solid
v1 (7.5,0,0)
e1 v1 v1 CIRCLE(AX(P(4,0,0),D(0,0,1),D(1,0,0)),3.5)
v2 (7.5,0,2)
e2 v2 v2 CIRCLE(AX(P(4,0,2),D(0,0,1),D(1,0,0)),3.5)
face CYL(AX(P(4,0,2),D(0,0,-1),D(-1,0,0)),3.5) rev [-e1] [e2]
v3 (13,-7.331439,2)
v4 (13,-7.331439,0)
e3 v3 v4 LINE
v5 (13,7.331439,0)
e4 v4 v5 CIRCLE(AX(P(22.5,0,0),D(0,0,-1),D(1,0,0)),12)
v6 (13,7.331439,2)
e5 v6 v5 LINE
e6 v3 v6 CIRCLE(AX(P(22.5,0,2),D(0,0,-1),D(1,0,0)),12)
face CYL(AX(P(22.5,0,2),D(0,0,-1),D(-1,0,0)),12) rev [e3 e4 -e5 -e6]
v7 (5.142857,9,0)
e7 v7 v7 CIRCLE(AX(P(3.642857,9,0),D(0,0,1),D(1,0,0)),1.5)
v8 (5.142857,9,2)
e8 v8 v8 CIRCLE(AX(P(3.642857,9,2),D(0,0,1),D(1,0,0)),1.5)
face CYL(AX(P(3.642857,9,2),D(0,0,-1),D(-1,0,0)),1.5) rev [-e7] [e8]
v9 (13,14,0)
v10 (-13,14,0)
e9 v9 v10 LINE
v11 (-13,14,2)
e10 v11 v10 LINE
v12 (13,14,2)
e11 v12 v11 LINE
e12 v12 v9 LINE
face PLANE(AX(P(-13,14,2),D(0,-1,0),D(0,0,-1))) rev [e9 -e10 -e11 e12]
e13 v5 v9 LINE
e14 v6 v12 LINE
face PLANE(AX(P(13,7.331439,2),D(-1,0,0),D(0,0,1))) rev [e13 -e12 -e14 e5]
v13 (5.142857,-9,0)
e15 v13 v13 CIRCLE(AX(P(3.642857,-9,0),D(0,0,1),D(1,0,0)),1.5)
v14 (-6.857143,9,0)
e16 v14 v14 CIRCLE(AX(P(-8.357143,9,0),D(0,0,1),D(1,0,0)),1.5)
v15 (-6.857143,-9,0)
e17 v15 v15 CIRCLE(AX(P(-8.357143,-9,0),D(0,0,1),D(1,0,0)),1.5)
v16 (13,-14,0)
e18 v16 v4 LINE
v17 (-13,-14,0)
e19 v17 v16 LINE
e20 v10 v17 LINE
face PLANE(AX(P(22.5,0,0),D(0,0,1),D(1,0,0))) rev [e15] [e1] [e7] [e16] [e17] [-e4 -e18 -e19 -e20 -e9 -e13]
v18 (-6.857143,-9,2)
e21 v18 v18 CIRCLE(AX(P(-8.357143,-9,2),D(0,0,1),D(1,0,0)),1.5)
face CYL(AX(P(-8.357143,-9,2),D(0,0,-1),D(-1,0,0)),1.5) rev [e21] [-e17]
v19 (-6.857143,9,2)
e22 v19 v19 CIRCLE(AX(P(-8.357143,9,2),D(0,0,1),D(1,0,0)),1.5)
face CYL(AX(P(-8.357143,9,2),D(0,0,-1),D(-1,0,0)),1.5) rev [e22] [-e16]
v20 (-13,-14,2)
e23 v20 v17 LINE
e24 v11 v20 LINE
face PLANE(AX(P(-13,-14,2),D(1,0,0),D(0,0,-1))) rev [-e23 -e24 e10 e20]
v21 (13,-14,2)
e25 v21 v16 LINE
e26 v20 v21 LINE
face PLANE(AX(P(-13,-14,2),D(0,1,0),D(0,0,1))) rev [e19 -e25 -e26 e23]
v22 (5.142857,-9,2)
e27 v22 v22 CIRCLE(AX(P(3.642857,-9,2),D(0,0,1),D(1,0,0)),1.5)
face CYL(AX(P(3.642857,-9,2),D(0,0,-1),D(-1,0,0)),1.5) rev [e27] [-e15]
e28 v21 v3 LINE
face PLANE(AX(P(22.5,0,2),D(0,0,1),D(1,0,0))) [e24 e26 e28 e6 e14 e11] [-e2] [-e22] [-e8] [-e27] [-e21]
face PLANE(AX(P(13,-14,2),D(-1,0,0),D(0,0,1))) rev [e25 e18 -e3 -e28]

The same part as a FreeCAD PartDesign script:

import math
import FreeCAD as App
import Part
import Sketcher
from FreeCAD import Vector
Q = App.Units.Quantity

doc = App.newDocument("Part")
body = doc.addObject("PartDesign::Body", "Body")

sketch1 = body.newObject("Sketcher::SketchObject", "Sketch")
sketch1.AttachmentSupport = (doc.getObject("XY_Plane"), [""])
sketch1.MapMode = "FlatFace"
sketch1.addGeometry([
    Part.LineSegment(Vector(-13, -14, 0), Vector(13, -14, 0)),
    Part.LineSegment(Vector(13, -14, 0), Vector(13, -7.3, 0)),
    Part.ArcOfCircle(Part.Circle(Vector(22.5, 0, 0), Vector(0, 0, 1), 12), math.radians(142), math.radians(218)),
    Part.LineSegment(Vector(13, 7.3, 0), Vector(13, 14, 0)),
    Part.LineSegment(Vector(13, 14, 0), Vector(-13, 14, 0)),
    Part.LineSegment(Vector(-13, 14, 0), Vector(-13, -14, 0)),
    Part.Circle(Vector(-8.4, -9, 0), Vector(0, 0, 1), 1.5),
    Part.Circle(Vector(3.6, -9, 0), Vector(0, 0, 1), 1.5),
    Part.Circle(Vector(-8.4, 9, 0), Vector(0, 0, 1), 1.5),
    Part.Circle(Vector(4, 0, 0), Vector(0, 0, 1), 3.5),
    Part.Circle(Vector(3.6, 9, 0), Vector(0, 0, 1), 1.5),
], False)
sketch1.addConstraint([
    Sketcher.Constraint("Coincident", 0, 2, 1, 1),
    Sketcher.Constraint("Coincident", 1, 2, 2, 2),
    Sketcher.Constraint("Coincident", 2, 1, 3, 1),
    Sketcher.Constraint("Coincident", 3, 2, 4, 1),
    Sketcher.Constraint("Coincident", 4, 2, 5, 1),
    Sketcher.Constraint("Coincident", 5, 2, 0, 1),
    Sketcher.Constraint("Horizontal", 0),
    Sketcher.Constraint("Vertical", 1),
    Sketcher.Constraint("Vertical", 3),
    Sketcher.Constraint("Horizontal", 4),
    Sketcher.Constraint("Vertical", 5),
    Sketcher.Constraint("Equal", 6, 7),
    Sketcher.Constraint("Equal", 7, 8),
    Sketcher.Constraint("Equal", 8, 10),
    Sketcher.Constraint("Symmetric", 0, 2, 4, 2, -1, 1),
    Sketcher.Constraint("Symmetric", 6, 3, 8, 3, -1),
    Sketcher.Constraint("Symmetric", 7, 3, 10, 3, -1),
    Sketcher.Constraint("Symmetric", 1, 2, 2, 1, -1),
    Sketcher.Constraint("PointOnObject", 9, 3, -1),
    Sketcher.Constraint("Horizontal", 6, 3, 7, 3),
    Sketcher.Constraint("Diameter", 6, Q("3 mm")),
    Sketcher.Constraint("Diameter", 9, Q("7 mm")),
    Sketcher.Constraint("Radius", 2, Q("12 mm")),
    Sketcher.Constraint("DistanceX", 0, 1, 0, 2, Q("26 mm")),
    Sketcher.Constraint("DistanceY", 5, 2, 5, 1, Q("28 mm")),
    Sketcher.Constraint("DistanceY", 6, 3, -1, 1, Q("9 mm")),
    Sketcher.Constraint("DistanceX", -1, 1, 9, 3, Q("4 mm")),
    Sketcher.Constraint("DistanceX", 6, 3, 7, 3, Q("12 mm")),
    Sketcher.Constraint("DistanceX", -1, 1, 2, 3, Q("22.5 mm")),
    Sketcher.Constraint("DistanceX", 6, 3, -1, 1, Q("8.357143 mm")),
])
pad1 = body.newObject("PartDesign::Pad", "Pad")
pad1.Profile = sketch1
pad1.Length = 2

doc.recompute()
